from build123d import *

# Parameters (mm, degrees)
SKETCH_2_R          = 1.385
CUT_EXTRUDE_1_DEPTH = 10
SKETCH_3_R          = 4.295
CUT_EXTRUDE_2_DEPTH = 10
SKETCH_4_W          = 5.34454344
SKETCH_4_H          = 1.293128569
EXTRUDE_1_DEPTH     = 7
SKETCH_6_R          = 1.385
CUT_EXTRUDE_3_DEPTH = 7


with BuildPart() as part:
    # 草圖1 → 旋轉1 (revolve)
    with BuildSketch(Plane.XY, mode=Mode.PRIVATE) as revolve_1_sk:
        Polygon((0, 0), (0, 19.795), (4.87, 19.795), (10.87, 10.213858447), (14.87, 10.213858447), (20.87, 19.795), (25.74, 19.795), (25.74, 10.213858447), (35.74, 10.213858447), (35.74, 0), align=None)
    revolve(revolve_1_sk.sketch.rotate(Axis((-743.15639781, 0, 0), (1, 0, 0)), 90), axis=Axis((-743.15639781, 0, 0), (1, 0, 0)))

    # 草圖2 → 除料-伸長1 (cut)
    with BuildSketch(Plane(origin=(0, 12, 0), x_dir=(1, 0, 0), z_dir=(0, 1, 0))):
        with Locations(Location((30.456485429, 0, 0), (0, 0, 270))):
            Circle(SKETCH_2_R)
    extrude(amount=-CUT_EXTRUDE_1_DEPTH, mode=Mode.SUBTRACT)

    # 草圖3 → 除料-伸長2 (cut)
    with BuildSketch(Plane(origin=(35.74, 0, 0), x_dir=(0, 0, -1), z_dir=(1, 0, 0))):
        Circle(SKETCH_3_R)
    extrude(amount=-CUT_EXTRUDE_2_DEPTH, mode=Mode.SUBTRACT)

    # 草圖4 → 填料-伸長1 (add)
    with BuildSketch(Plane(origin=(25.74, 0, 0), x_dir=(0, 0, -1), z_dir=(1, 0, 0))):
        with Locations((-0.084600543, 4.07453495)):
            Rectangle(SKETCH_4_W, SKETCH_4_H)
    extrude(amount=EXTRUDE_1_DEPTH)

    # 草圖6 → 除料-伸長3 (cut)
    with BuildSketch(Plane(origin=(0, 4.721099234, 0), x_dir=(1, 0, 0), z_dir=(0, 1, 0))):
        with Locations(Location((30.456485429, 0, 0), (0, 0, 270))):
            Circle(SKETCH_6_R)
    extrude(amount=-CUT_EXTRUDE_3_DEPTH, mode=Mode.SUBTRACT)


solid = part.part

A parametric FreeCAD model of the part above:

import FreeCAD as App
import Part
import Sketcher

V = App.Vector


def add_polygon(sketch, points):
    """Adds a closed chain of lines whose ends are joined by coincident constraints."""
    first, n = sketch.GeometryCount, len(points)
    for a, b in zip(points, points[1:] + points[:1]):
        sketch.addGeometry(Part.LineSegment(App.Vector(*a, 0), App.Vector(*b, 0)), False)
    for i in range(n):
        sketch.addConstraint(Sketcher.Constraint("Coincident", first + i, 2, first + (i + 1) % n, 1))

doc = App.newDocument("Part")
body = doc.addObject("PartDesign::Body", "Body")

# Sketch on XY plane
sketch1 = body.newObject("Sketcher::SketchObject", "Sketch")
sketch1.AttachmentSupport = (doc.getObject("XY_Plane"), [""])
sketch1.MapMode = "FlatFace"
add_polygon(sketch1, [(0, 19.795), (0, 0), (35.74, 0), (35.74, 10.213858), (25.74, 10.213858), (25.74, 19.795), (20.87, 19.795), (14.87, 10.213858), (10.87, 10.213858), (4.87, 19.795)])  # lines 0-9
sketch1.addConstraint([
    Sketcher.Constraint("Vertical", 0),
    Sketcher.Constraint("Horizontal", 1),
    Sketcher.Constraint("Vertical", 2),
    Sketcher.Constraint("Horizontal", 3),
    Sketcher.Constraint("Vertical", 4),
    Sketcher.Constraint("Horizontal", 5),
    Sketcher.Constraint("Horizontal", 7),
    Sketcher.Constraint("Horizontal", 9),
    Sketcher.Constraint("Coincident", 0, 2, -1, 1),
    Sketcher.Constraint("Horizontal", 3, 2, 6, 2),
    Sketcher.Constraint("Horizontal", 5, 2, 8, 2),
    Sketcher.Constraint("Equal", 5, 9),
    Sketcher.Constraint("Equal", 6, 8),
    Sketcher.Constraint("DistanceX", 3, 2, 3, 1, 10.0),
    Sketcher.Constraint("DistanceX", 7, 2, 7, 1, 4.0),
    Sketcher.Constraint("DistanceX", 6, 2, 5, 2, 6.0),
    Sketcher.Constraint("DistanceX", 1, 1, 1, 2, 35.74),
    Sketcher.Constraint("DistanceY", 0, 2, 0, 1, 19.795),
    Sketcher.Constraint("DistanceY", 2, 1, 2, 2, 10.213858),
])
revolution = body.newObject("PartDesign::Revolution", "Revolution")
revolution.Profile = sketch1
revolution.ReferenceAxis = (sketch1, ["H_Axis"])
revolution.Angle = 360

# Sketch on XZ plane
sketch2 = body.newObject("Sketcher::SketchObject", "Sketch001")
sketch2.AttachmentSupport = (doc.getObject("XZ_Plane"), [""])
sketch2.MapMode = "FlatFace"
sketch2.AttachmentOffset = App.Placement(V(0, 0, -12), App.Rotation())
sketch2.addGeometry(Part.Circle(V(30.456485, 0, 0), V(0, 0, 1), 1.385), False)
sketch2.addConstraint([
    Sketcher.Constraint("PointOnObject", 0, 3, -1),
    Sketcher.Constraint("Diameter", 0, 2.77),
    Sketcher.Constraint("DistanceX", -1, 1, 0, 3, 30.456485),
])
pocket1 = body.newObject("PartDesign::Pocket", "Pocket")
pocket1.Profile = sketch2
pocket1.Length = 10
pocket1.Reversed = True

# Sketch on YZ plane
sketch3 = body.newObject("Sketcher::SketchObject", "Sketch002")
sketch3.AttachmentSupport = (doc.getObject("YZ_Plane"), [""])
sketch3.MapMode = "FlatFace"
sketch3.AttachmentOffset = App.Placement(V(0, 0, 35.74), App.Rotation())
sketch3.addGeometry(Part.Circle(V(0, 0, 0), V(0, 0, 1), 4.295), False)
sketch3.addConstraint([
    Sketcher.Constraint("Coincident", 0, 3, -1, 1),
    Sketcher.Constraint("Diameter", 0, 8.59),
])
pocket2 = body.newObject("PartDesign::Pocket", "Pocket001")
pocket2.Profile = sketch3
pocket2.Length = 10

# Sketch on YZ plane
sketch4 = body.newObject("Sketcher::SketchObject", "Sketch003")
sketch4.AttachmentSupport = (doc.getObject("YZ_Plane"), [""])
sketch4.MapMode = "FlatFace"
sketch4.AttachmentOffset = App.Placement(V(0, 0, 25.74), App.Rotation())
add_polygon(sketch4, [(4.721099, 2.756872), (3.427971, 2.756872), (3.427971, -2.587671), (4.721099, -2.587671)])  # lines 0-3
sketch4.addConstraint([
    Sketcher.Constraint("Horizontal", 0),
    Sketcher.Constraint("Vertical", 1),
    Sketcher.Constraint("Horizontal", 2),
    Sketcher.Constraint("Vertical", 3),
    Sketcher.Constraint("DistanceX", 0, 2, 0, 1, 1.293129),
    Sketcher.Constraint("DistanceX", -1, 1, 2, 2, 4.721099),
    Sketcher.Constraint("DistanceY", 1, 2, 1, 1, 5.344543),
    Sketcher.Constraint("DistanceY", 1, 2, -1, 1, 2.587671),
])
pad1 = body.newObject("PartDesign::Pad", "Pad")
pad1.Profile = sketch4
pad1.Length = 7

# Sketch on XZ plane
sketch5 = body.newObject("Sketcher::SketchObject", "Sketch004")
sketch5.AttachmentSupport = (doc.getObject("XZ_Plane"), [""])
sketch5.MapMode = "FlatFace"
sketch5.AttachmentOffset = App.Placement(V(0, 0, -4.721099), App.Rotation())
sketch5.addGeometry(Part.Circle(V(30.456485, 0, 0), V(0, 0, 1), 1.385), False)
sketch5.addConstraint([
    Sketcher.Constraint("PointOnObject", 0, 3, -1),
    Sketcher.Constraint("Diameter", 0, 2.77),
    Sketcher.Constraint("DistanceX", -1, 1, 0, 3, 30.456485),
])
pocket3 = body.newObject("PartDesign::Pocket", "Pocket002")
pocket3.Profile = sketch5
pocket3.Length = 7
pocket3.Reversed = True

doc.recompute()
